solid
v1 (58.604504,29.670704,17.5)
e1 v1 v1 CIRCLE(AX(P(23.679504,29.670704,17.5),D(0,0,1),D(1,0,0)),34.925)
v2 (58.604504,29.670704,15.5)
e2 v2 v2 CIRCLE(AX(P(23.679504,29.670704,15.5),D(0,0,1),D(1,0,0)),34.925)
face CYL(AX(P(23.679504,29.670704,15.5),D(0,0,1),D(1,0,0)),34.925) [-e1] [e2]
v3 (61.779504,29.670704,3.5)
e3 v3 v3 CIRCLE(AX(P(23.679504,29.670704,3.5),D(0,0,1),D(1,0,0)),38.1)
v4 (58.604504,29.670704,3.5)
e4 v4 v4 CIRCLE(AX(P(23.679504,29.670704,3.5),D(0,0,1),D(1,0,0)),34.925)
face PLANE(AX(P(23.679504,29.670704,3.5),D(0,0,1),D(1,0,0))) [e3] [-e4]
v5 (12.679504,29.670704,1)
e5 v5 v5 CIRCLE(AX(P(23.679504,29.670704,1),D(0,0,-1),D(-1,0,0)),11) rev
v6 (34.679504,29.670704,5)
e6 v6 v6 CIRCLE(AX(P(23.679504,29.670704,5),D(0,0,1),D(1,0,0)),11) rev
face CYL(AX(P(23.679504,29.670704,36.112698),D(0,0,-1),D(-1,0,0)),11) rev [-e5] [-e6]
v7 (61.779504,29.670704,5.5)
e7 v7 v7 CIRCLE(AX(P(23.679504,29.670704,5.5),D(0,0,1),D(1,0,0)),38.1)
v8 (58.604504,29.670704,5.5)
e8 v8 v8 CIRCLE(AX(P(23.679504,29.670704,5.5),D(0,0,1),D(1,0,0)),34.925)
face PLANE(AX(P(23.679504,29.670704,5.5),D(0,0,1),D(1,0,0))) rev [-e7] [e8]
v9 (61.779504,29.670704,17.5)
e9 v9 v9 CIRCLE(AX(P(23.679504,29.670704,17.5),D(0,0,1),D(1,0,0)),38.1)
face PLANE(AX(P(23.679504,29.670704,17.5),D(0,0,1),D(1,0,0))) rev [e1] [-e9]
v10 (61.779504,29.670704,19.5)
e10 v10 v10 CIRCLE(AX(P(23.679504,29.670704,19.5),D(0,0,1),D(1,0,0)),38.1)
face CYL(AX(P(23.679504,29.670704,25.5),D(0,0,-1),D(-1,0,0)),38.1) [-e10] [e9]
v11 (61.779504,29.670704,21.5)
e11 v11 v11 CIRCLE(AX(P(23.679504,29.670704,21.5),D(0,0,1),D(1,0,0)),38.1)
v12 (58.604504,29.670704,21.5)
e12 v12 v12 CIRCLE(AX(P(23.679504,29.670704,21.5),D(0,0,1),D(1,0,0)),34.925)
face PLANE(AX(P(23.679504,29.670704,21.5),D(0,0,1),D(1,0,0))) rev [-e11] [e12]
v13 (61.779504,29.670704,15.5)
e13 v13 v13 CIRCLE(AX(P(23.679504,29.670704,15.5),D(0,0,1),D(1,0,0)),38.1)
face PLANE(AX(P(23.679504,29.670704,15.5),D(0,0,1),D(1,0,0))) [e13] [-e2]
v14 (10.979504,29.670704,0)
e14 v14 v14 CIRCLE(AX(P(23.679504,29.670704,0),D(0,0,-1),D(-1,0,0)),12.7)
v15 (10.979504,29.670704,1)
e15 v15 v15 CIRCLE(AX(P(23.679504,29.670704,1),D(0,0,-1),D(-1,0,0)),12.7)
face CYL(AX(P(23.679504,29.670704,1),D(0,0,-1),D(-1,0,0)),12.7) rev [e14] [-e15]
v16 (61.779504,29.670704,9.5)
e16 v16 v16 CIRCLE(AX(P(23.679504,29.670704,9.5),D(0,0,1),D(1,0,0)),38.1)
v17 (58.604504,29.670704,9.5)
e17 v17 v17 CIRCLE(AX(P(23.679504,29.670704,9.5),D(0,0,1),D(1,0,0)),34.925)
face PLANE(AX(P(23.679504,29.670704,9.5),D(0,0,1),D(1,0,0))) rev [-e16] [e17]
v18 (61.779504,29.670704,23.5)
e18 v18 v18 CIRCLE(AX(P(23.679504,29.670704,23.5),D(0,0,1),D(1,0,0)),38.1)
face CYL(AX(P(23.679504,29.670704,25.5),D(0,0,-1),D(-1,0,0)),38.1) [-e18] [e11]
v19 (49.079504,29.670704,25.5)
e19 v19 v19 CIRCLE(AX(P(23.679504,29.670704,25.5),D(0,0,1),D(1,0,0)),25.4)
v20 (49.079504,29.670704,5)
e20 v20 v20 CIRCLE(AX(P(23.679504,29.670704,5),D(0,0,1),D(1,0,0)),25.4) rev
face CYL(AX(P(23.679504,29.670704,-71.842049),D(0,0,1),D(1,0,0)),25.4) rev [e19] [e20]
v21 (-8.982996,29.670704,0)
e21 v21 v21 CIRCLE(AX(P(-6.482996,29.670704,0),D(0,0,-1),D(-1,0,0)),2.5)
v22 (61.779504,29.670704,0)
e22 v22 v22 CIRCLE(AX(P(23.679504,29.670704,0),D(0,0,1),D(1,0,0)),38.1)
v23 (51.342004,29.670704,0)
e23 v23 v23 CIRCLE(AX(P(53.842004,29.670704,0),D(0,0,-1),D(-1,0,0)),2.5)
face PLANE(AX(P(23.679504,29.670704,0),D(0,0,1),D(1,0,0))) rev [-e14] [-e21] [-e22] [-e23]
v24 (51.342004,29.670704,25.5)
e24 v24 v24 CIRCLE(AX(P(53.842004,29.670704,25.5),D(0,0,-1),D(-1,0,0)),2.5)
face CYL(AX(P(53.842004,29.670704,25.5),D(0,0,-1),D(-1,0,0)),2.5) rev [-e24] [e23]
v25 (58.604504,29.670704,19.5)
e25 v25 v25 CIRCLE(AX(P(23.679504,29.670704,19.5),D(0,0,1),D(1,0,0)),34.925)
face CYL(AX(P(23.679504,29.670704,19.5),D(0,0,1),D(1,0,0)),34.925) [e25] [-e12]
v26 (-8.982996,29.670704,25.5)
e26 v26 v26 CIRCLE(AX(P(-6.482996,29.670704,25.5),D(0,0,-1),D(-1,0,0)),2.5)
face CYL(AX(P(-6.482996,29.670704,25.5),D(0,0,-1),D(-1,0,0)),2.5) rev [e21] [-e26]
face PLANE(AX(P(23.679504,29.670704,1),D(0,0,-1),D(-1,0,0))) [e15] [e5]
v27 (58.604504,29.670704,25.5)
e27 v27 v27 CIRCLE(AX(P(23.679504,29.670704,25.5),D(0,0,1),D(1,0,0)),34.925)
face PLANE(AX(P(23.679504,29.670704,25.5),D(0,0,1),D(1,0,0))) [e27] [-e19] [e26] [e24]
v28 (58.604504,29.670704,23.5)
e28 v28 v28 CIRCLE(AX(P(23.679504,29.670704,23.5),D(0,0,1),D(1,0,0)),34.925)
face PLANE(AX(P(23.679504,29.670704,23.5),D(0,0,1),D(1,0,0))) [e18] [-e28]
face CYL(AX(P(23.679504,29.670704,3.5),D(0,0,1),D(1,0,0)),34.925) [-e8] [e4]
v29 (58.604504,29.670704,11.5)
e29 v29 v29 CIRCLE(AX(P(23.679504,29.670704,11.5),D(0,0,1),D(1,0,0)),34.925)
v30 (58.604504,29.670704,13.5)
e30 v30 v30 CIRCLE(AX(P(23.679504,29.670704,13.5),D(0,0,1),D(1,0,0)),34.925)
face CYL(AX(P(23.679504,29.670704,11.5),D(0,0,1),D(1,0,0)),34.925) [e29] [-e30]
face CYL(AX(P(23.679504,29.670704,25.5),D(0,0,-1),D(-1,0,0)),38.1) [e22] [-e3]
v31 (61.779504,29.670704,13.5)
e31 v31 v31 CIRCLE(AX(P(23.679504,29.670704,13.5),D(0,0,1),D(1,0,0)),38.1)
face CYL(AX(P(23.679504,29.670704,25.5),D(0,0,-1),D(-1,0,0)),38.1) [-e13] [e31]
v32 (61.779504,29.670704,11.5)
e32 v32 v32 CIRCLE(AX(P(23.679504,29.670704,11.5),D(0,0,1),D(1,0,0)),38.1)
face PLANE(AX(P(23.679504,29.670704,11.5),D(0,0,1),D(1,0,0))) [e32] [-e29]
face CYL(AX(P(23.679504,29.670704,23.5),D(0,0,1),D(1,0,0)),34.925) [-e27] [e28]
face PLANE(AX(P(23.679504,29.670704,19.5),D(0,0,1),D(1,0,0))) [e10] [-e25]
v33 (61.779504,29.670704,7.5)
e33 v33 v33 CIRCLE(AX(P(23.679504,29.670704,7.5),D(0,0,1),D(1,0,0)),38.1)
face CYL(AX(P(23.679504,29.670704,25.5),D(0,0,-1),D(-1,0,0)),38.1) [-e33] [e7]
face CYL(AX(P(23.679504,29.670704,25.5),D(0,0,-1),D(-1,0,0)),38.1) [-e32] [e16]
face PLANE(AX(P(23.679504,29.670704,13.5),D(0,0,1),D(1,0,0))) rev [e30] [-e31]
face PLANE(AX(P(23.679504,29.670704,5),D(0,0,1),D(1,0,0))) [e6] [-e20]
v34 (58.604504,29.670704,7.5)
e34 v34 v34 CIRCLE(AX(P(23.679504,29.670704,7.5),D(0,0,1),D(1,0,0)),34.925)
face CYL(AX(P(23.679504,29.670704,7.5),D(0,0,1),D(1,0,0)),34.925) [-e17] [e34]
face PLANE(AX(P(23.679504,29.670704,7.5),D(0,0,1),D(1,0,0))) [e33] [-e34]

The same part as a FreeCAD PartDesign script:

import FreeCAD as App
import Part
import Sketcher
from FreeCAD import Vector
Q = App.Units.Quantity

doc = App.newDocument("Part")
body = doc.addObject("PartDesign::Body", "Body")

sketch1 = doc.addObject("Sketcher::SketchObject", "Sketch")
body.addObject(sketch1)
sketch1.AttachmentSupport = (doc.XY_Plane, [""])
sketch1.MapMode = "FlatFace"
sketch1.addGeometry(Part.Circle(Vector(24, 30, 0), Vector(0, 0, 1), 38), False)
sketch1.addConstraint([
    Sketcher.Constraint("Diameter", 0, Q("76.2 mm")),
    Sketcher.Constraint("DistanceX", -1, 1, 0, 3, Q("23.679504 mm")),
    Sketcher.Constraint("DistanceY", -1, 1, 0, 3, Q("29.670704 mm")),
])
pad1 = doc.addObject("PartDesign::Pad", "Pad")
body.addObject(pad1)
pad1.Profile = sketch1
pad1.Length = 25.5

sketch2 = doc.addObject("Sketcher::SketchObject", "Sketch001")
body.addObject(sketch2)
sketch2.AttachmentSupport = (doc.XY_Plane, [""])
sketch2.MapMode = "FlatFace"
sketch2.AttachmentOffset = App.Placement(Vector(0, 0, 25.5), App.Rotation())
sketch2.addGeometry(Part.Circle(Vector(24, 30, 0), Vector(0, 0, 1), 25), False)
sketch2.addConstraint([
    Sketcher.Constraint("Diameter", 0, Q("50.8 mm")),
    Sketcher.Constraint("DistanceX", -1, 1, 0, 3, Q("23.679504 mm")),
    Sketcher.Constraint("DistanceY", -1, 1, 0, 3, Q("29.670704 mm")),
])
pocket1 = doc.addObject("PartDesign::Pocket", "Pocket")
body.addObject(pocket1)
pocket1.Profile = sketch2
pocket1.Length = 20.5

sketch3 = doc.addObject("Sketcher::SketchObject", "Sketch002")
body.addObject(sketch3)
sketch3.AttachmentSupport = (doc.XY_Plane, [""])
sketch3.MapMode = "FlatFace"
sketch3.addGeometry(Part.Circle(Vector(24, 30, 0), Vector(0, 0, 1), 11), False)
sketch3.addConstraint([
    Sketcher.Constraint("Diameter", 0, Q("22 mm")),
    Sketcher.Constraint("DistanceX", -1, 1, 0, 3, Q("23.679504 mm")),
    Sketcher.Constraint("DistanceY", -1, 1, 0, 3, Q("29.670704 mm")),
])
pocket2 = doc.addObject("PartDesign::Pocket", "Pocket001")
body.addObject(pocket2)
pocket2.Profile = sketch3
pocket2.Length = 5
pocket2.Reversed = True

sketch4 = doc.addObject("Sketcher::SketchObject", "Sketch003")
body.addObject(sketch4)
sketch4.AttachmentSupport = (doc.XY_Plane, [""])
sketch4.MapMode = "FlatFace"
sketch4.addGeometry(Part.Circle(Vector(24, 30, 0), Vector(0, 0, 1), 13), False)
sketch4.addConstraint([
    Sketcher.Constraint("Diameter", 0, Q("25.4 mm")),
    Sketcher.Constraint("DistanceX", -1, 1, 0, 3, Q("23.679504 mm")),
    Sketcher.Constraint("DistanceY", -1, 1, 0, 3, Q("29.670704 mm")),
])
pocket3 = doc.addObject("PartDesign::Pocket", "Pocket002")
body.addObject(pocket3)
pocket3.Profile = sketch4
pocket3.Length = 1
pocket3.Reversed = True

sketch5 = doc.addObject("Sketcher::SketchObject", "Sketch004")
body.addObject(sketch5)
sketch5.AttachmentSupport = (doc.XY_Plane, [""])
sketch5.MapMode = "FlatFace"
sketch5.AttachmentOffset = App.Placement(Vector(0, 0, 25.5), App.Rotation())
sketch5.addGeometry([
    Part.Circle(Vector(24, 30, 0), Vector(0, 0, 1), 38),
    Part.Circle(Vector(24, 30, 0), Vector(0, 0, 1), 35),
], False)
sketch5.addConstraint([
    Sketcher.Constraint("Coincident", 1, 3, 0, 3),
    Sketcher.Constraint("Diameter", 0, Q("76.2 mm")),
    Sketcher.Constraint("Diameter", 1, Q("69.85 mm")),
    Sketcher.Constraint("DistanceX", -1, 1, 0, 3, Q("23.679504 mm")),
    Sketcher.Constraint("DistanceY", -1, 1, 0, 3, Q("29.670704 mm")),
])
pocket4 = doc.addObject("PartDesign::Pocket", "Pocket003")
body.addObject(pocket4)
pocket4.Profile = sketch5
pocket4.Length = 2
doc.recompute()

linearpattern = doc.addObject("PartDesign::LinearPattern", "LinearPattern")
body.addObject(linearpattern)
linearpattern.Originals = [pocket4]
linearpattern.Direction = (doc.Z_Axis, [""])
linearpattern.Mode = "offset"
linearpattern.Offset = 4
linearpattern.Occurrences = 6
linearpattern.Reversed = True
body.Tip = linearpattern

sketch6 = doc.addObject("Sketcher::SketchObject", "Sketch005")
body.addObject(sketch6)
sketch6.AttachmentSupport = (doc.XY_Plane, [""])
sketch6.MapMode = "FlatFace"
sketch6.addGeometry([
    Part.Circle(Vector(-6.5, 29.7, 0), Vector(0, 0, 1), 2.5),
    Part.Circle(Vector(53.8, 29.7, 0), Vector(0, 0, 1), 2.5),
], False)
sketch6.addConstraint([
    Sketcher.Constraint("Equal", 0, 1),
    Sketcher.Constraint("Horizontal", 0, 3, 1, 3),
    Sketcher.Constraint("Diameter", 0, Q("5 mm")),
    Sketcher.Constraint("DistanceX", 0, 3, 1, 3, Q("60.325 mm")),
    Sketcher.Constraint("DistanceX", 0, 3, -1, 1, Q("6.482996 mm")),
    Sketcher.Constraint("DistanceY", -1, 1, 0, 3, Q("29.670704 mm")),
])
pocket5 = doc.addObject("PartDesign::Pocket", "Pocket004")
body.addObject(pocket5)
pocket5.Profile = sketch6
pocket5.Type = "ThroughAll"
pocket5.Reversed = True

doc.recompute()
